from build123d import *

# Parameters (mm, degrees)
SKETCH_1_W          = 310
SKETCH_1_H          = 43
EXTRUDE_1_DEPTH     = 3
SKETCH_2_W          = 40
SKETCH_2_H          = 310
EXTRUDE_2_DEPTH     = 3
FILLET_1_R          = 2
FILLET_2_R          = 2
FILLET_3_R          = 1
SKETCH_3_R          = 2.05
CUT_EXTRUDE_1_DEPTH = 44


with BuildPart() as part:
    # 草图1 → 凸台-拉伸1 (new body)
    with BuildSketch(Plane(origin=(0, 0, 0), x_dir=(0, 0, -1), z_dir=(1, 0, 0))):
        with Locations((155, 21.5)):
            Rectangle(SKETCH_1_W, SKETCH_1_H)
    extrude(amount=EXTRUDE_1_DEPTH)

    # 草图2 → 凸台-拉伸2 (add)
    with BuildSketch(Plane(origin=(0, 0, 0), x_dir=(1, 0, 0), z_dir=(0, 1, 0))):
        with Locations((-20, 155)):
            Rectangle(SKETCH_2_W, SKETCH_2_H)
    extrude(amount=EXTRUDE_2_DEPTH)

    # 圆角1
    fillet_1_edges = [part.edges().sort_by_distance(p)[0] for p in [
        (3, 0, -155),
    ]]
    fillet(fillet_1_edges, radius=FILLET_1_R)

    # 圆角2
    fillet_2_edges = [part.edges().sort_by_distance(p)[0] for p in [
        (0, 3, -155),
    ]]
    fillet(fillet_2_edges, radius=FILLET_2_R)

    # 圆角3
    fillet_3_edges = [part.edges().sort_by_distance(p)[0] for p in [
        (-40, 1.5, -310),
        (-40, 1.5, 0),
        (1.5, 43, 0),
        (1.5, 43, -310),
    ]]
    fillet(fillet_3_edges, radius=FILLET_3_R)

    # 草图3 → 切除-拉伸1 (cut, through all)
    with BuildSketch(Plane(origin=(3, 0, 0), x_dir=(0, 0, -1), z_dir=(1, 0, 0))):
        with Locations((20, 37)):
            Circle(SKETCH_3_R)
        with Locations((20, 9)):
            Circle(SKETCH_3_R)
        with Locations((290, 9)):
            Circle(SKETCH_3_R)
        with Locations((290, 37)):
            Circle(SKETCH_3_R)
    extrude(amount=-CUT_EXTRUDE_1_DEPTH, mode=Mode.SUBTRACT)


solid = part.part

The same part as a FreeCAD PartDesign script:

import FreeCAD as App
import Part
import Sketcher
Q = App.Units.Quantity


def edges_at(feature, points):
    """Names of the edges that pass closest to the given points."""
    edges = feature.Shape.Edges
    near = lambda p: min(range(len(edges)), key=lambda i: edges[i].distToShape(Part.Vertex(*p))[0])
    return sorted({f"Edge{near(p) + 1}" for p in points})


def add_polygon(sketch, points):
    """Adds a closed chain of lines whose ends are joined by coincident constraints."""
    first, n = sketch.GeometryCount, len(points)
    for a, b in zip(points, points[1:] + points[:1]):
        sketch.addGeometry(Part.LineSegment(App.Vector(*a, 0), App.Vector(*b, 0)), False)
    for i in range(n):
        sketch.addConstraint(Sketcher.Constraint("Coincident", first + i, 2, first + (i + 1) % n, 1))

doc = App.newDocument("Part")
body = doc.addObject("PartDesign::Body", "Body")

sketch1 = body.newObject("Sketcher::SketchObject", "Sketch")
sketch1.AttachmentSupport = (doc.getObject("YZ_Plane"), [""])
sketch1.MapMode = "FlatFace"
add_polygon(sketch1, [(43, 0), (0, 0), (0, -310), (43, -310)])
sketch1.addConstraint(Sketcher.Constraint("Horizontal", 0))
sketch1.addConstraint(Sketcher.Constraint("Vertical", 1))
sketch1.addConstraint(Sketcher.Constraint("Horizontal", 2))
sketch1.addConstraint(Sketcher.Constraint("Vertical", 3))
sketch1.addConstraint(Sketcher.Constraint("Coincident", 0, 2, -1, 1))
sketch1.addConstraint(Sketcher.Constraint("DistanceX", 0, 2, 0, 1, Q("43 mm")))
sketch1.addConstraint(Sketcher.Constraint("DistanceY", 1, 2, 1, 1, Q("310 mm")))
pad1 = body.newObject("PartDesign::Pad", "Pad")
pad1.Profile = sketch1
pad1.Length = 3

sketch2 = body.newObject("Sketcher::SketchObject", "Sketch001")
sketch2.AttachmentSupport = (doc.getObject("XZ_Plane"), [""])
sketch2.MapMode = "FlatFace"
add_polygon(sketch2, [(-40, -310), (-40, 0), (0, 0), (0, -310)])
sketch2.addConstraint(Sketcher.Constraint("Vertical", 0))
sketch2.addConstraint(Sketcher.Constraint("Horizontal", 1))
sketch2.addConstraint(Sketcher.Constraint("Vertical", 2))
sketch2.addConstraint(Sketcher.Constraint("Horizontal", 3))
sketch2.addConstraint(Sketcher.Constraint("Coincident", 1, 2, -1, 1))
sketch2.addConstraint(Sketcher.Constraint("DistanceX", 1, 1, 1, 2, Q("40 mm")))
sketch2.addConstraint(Sketcher.Constraint("DistanceY", 0, 1, 0, 2, Q("310 mm")))
pad2 = body.newObject("PartDesign::Pad", "Pad001")
pad2.Profile = sketch2
pad2.Length = 3
pad2.Reversed = True
doc.recompute()

fillet = body.newObject("PartDesign::Fillet", "Fillet")
fillet.Base = (pad2, edges_at(pad2, [(3, 0, -155)]))
fillet.Radius = 2
doc.recompute()

fillet2 = body.newObject("PartDesign::Fillet", "Fillet001")
fillet2.Base = (fillet, edges_at(fillet, [(0, 3, -155)]))
fillet2.Radius = 2
doc.recompute()

fillet3 = body.newObject("PartDesign::Fillet", "Fillet002")
fillet3.Base = (fillet2, edges_at(fillet2, [
    (-40, 1.5, -310),
    (-40, 1.5, 0),
    (1.5, 43, 0),
    (1.5, 43, -310),
]))
fillet3.Radius = 1

sketch3 = body.newObject("Sketcher::SketchObject", "Sketch002")
sketch3.AttachmentSupport = (doc.getObject("YZ_Plane"), [""])
sketch3.MapMode = "FlatFace"
sketch3.AttachmentOffset = App.Placement(App.Vector(0, 0, 3), App.Rotation())
sketch3.addGeometry(Part.Circle(App.Vector(37, -20, 0), App.Vector(0, 0, 1), 2.05), False)
sketch3.addGeometry(Part.Circle(App.Vector(9, -20, 0), App.Vector(0, 0, 1), 2.05), False)
sketch3.addGeometry(Part.Circle(App.Vector(9, -290, 0), App.Vector(0, 0, 1), 2.05), False)
sketch3.addGeometry(Part.Circle(App.Vector(37, -290, 0), App.Vector(0, 0, 1), 2.05), False)
sketch3.addConstraint(Sketcher.Constraint("Equal", 0, 1))
sketch3.addConstraint(Sketcher.Constraint("Equal", 1, 2))
sketch3.addConstraint(Sketcher.Constraint("Equal", 2, 3))
sketch3.addConstraint(Sketcher.Constraint("Horizontal", 0, 3, 1, 3))
sketch3.addConstraint(Sketcher.Constraint("Horizontal", 2, 3, 3, 3))
sketch3.addConstraint(Sketcher.Constraint("Vertical", 1, 3, 2, 3))
sketch3.addConstraint(Sketcher.Constraint("Vertical", 0, 3, 3, 3))
sketch3.addConstraint(Sketcher.Constraint("Diameter", 0, Q("4.1 mm")))
sketch3.addConstraint(Sketcher.Constraint("DistanceX", -1, 1, 0, 3, Q("37 mm")))
sketch3.addConstraint(Sketcher.Constraint("DistanceY", 0, 3, -1, 1, Q("20 mm")))
sketch3.addConstraint(Sketcher.Constraint("DistanceX", -1, 1, 1, 3, Q("9 mm")))
sketch3.addConstraint(Sketcher.Constraint("DistanceY", 2, 3, -1, 1, Q("290 mm")))
pocket1 = body.newObject("PartDesign::Pocket", "Pocket")
pocket1.Profile = sketch3
pocket1.Type = "ThroughAll"

doc.recompute()
